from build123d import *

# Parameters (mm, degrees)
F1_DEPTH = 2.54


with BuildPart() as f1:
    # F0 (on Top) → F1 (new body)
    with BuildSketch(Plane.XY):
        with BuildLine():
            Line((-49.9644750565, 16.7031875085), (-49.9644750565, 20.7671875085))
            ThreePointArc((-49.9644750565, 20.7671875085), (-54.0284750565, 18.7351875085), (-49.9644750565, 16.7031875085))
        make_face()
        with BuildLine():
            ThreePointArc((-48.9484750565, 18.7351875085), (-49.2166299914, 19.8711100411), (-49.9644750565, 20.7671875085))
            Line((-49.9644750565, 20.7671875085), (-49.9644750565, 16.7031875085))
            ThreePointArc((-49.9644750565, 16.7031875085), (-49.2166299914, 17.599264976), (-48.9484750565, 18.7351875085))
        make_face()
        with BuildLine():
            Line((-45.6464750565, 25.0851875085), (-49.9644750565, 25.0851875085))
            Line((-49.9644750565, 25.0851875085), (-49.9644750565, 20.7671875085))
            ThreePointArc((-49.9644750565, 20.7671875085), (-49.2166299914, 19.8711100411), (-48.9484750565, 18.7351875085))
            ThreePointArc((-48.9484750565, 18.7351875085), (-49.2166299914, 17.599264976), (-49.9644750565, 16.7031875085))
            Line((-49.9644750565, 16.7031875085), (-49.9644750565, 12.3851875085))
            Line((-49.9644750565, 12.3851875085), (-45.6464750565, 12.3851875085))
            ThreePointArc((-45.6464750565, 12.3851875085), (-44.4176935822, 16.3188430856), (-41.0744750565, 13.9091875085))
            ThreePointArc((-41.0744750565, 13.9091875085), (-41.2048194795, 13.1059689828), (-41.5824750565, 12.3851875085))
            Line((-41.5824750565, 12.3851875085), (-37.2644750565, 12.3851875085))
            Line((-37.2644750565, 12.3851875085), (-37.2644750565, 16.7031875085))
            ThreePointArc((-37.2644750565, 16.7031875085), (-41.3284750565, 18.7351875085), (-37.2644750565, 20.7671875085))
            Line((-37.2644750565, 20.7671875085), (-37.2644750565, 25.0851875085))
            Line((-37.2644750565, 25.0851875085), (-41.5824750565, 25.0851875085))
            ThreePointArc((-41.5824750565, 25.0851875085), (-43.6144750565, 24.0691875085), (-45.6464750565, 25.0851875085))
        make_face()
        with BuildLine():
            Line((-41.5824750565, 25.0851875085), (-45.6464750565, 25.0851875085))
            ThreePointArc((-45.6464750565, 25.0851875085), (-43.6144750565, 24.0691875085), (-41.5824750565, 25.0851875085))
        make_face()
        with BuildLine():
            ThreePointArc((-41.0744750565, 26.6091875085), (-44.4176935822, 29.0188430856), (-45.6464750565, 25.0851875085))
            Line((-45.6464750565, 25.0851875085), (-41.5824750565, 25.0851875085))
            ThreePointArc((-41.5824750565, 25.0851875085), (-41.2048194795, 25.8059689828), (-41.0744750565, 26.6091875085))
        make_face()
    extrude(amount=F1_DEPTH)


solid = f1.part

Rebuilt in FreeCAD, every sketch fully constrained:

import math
import FreeCAD as App
import Part
import Sketcher

V = App.Vector
Q = App.Units.Quantity

doc = App.newDocument("Part")
body = doc.addObject("PartDesign::Body", "Body")

sketch1 = body.newObject("Sketcher::SketchObject", "Sketch")
sketch1.AttachmentSupport = (doc.getObject("XY_Plane"), [""])
sketch1.MapMode = "FlatFace"
sketch1.addGeometry(Part.ArcOfCircle(Part.Circle(V(-51.5, 18.7, 0), V(0, 0, 1), 2.5), math.radians(53), math.radians(307)), False)
sketch1.addGeometry(Part.LineSegment(V(-50, 16.7, 0), V(-50, 12.4, 0)), False)
sketch1.addGeometry(Part.LineSegment(V(-50, 12.4, 0), V(-45.6, 12.4, 0)), False)
sketch1.addGeometry(Part.ArcOfCircle(Part.Circle(V(-43.6, 13.9, 0), V(0, 0, 1), 2.5), math.radians(0), math.radians(217)), False)
sketch1.addGeometry(Part.ArcOfCircle(Part.Circle(V(-43.6, 13.9, 0), V(0, 0, 1), 2.5), math.radians(-37), math.radians(0)), False)
sketch1.addGeometry(Part.LineSegment(V(-41.6, 12.4, 0), V(-37.3, 12.4, 0)), False)
sketch1.addGeometry(Part.LineSegment(V(-37.3, 12.4, 0), V(-37.3, 16.7, 0)), False)
sketch1.addGeometry(Part.ArcOfCircle(Part.Circle(V(-38.8, 18.7, 0), V(0, 0, 1), 2.5), math.radians(53), math.radians(307)), False)
sketch1.addGeometry(Part.LineSegment(V(-37.3, 20.8, 0), V(-37.3, 25.1, 0)), False)
sketch1.addGeometry(Part.LineSegment(V(-37.3, 25.1, 0), V(-41.6, 25.1, 0)), False)
sketch1.addGeometry(Part.ArcOfCircle(Part.Circle(V(-43.6, 26.6, 0), V(0, 0, 1), 2.5), math.radians(-37), math.radians(0)), False)
sketch1.addGeometry(Part.ArcOfCircle(Part.Circle(V(-43.6, 26.6, 0), V(0, 0, 1), 2.5), math.radians(0), math.radians(217)), False)
sketch1.addGeometry(Part.LineSegment(V(-45.6, 25.1, 0), V(-50, 25.1, 0)), False)
sketch1.addGeometry(Part.LineSegment(V(-50, 25.1, 0), V(-50, 20.8, 0)), False)
sketch1.addConstraint(Sketcher.Constraint("Coincident", 0, 2, 1, 1))
sketch1.addConstraint(Sketcher.Constraint("Coincident", 1, 2, 2, 1))
sketch1.addConstraint(Sketcher.Constraint("Coincident", 2, 2, 3, 2))
sketch1.addConstraint(Sketcher.Constraint("Tangent", 3, 1, 4, 2))
sketch1.addConstraint(Sketcher.Constraint("Coincident", 4, 1, 5, 1))
sketch1.addConstraint(Sketcher.Constraint("Coincident", 5, 2, 6, 1))
sketch1.addConstraint(Sketcher.Constraint("Coincident", 6, 2, 7, 2))
sketch1.addConstraint(Sketcher.Constraint("Coincident", 7, 1, 8, 1))
sketch1.addConstraint(Sketcher.Constraint("Coincident", 8, 2, 9, 1))
sketch1.addConstraint(Sketcher.Constraint("Coincident", 9, 2, 10, 1))
sketch1.addConstraint(Sketcher.Constraint("Tangent", 10, 2, 11, 1))
sketch1.addConstraint(Sketcher.Constraint("Coincident", 11, 2, 12, 1))
sketch1.addConstraint(Sketcher.Constraint("Coincident", 12, 2, 13, 1))
sketch1.addConstraint(Sketcher.Constraint("Coincident", 13, 2, 0, 1))
sketch1.addConstraint(Sketcher.Constraint("Vertical", 1))
sketch1.addConstraint(Sketcher.Constraint("Horizontal", 2))
sketch1.addConstraint(Sketcher.Constraint("Horizontal", 5))
sketch1.addConstraint(Sketcher.Constraint("Vertical", 6))
sketch1.addConstraint(Sketcher.Constraint("Vertical", 8))
sketch1.addConstraint(Sketcher.Constraint("Horizontal", 9))
sketch1.addConstraint(Sketcher.Constraint("Horizontal", 12))
sketch1.addConstraint(Sketcher.Constraint("Vertical", 13))
sketch1.addConstraint(Sketcher.Constraint("Equal", 0, 3))
sketch1.addConstraint(Sketcher.Constraint("Equal", 3, 4))
sketch1.addConstraint(Sketcher.Constraint("Equal", 4, 7))
sketch1.addConstraint(Sketcher.Constraint("Equal", 7, 10))
sketch1.addConstraint(Sketcher.Constraint("Equal", 10, 11))
sketch1.addConstraint(Sketcher.Constraint("Horizontal", 0, 3, 7, 3))
sketch1.addConstraint(Sketcher.Constraint("Horizontal", 4, 3, 3, 1))
sketch1.addConstraint(Sketcher.Constraint("Horizontal", 2, 2, 4, 1))
sketch1.addConstraint(Sketcher.Constraint("Horizontal", 0, 2, 6, 2))
sketch1.addConstraint(Sketcher.Constraint("Horizontal", 11, 3, 10, 2))
sketch1.addConstraint(Sketcher.Constraint("Horizontal", 9, 2, 11, 2))
sketch1.addConstraint(Sketcher.Constraint("Horizontal", 7, 1, 13, 2))
sketch1.addConstraint(Sketcher.Constraint("Vertical", 4, 3, 10, 3))
sketch1.addConstraint(Sketcher.Constraint("Vertical", 6, 2, 7, 1))
sketch1.addConstraint(Sketcher.Constraint("Vertical", 4, 1, 9, 2))
sketch1.addConstraint(Sketcher.Constraint("Equal", 2, 5))
sketch1.addConstraint(Sketcher.Constraint("Equal", 12, 1))
sketch1.addConstraint(Sketcher.Constraint("Equal", 6, 8))
sketch1.addConstraint(Sketcher.Constraint("Radius", 0, Q("0.1 in")))
sketch1.addConstraint(Sketcher.Constraint("DistanceX", 2, 1, 2, 2, Q("0.17 in")))
sketch1.addConstraint(Sketcher.Constraint("DistanceX", 0, 3, 7, 3, Q("0.5 in")))
sketch1.addConstraint(Sketcher.Constraint("DistanceY", 3, 3, 10, 3, Q("0.5 in")))
sketch1.addConstraint(Sketcher.Constraint("DistanceX", 0, 3, -1, 1, 51.488475))
sketch1.addConstraint(Sketcher.Constraint("DistanceY", -1, 1, 0, 3, 18.735188))
pad1 = body.newObject("PartDesign::Pad", "Pad")
pad1.Profile = sketch1
pad1.Length = Q("0.1 in")

doc.recompute()
